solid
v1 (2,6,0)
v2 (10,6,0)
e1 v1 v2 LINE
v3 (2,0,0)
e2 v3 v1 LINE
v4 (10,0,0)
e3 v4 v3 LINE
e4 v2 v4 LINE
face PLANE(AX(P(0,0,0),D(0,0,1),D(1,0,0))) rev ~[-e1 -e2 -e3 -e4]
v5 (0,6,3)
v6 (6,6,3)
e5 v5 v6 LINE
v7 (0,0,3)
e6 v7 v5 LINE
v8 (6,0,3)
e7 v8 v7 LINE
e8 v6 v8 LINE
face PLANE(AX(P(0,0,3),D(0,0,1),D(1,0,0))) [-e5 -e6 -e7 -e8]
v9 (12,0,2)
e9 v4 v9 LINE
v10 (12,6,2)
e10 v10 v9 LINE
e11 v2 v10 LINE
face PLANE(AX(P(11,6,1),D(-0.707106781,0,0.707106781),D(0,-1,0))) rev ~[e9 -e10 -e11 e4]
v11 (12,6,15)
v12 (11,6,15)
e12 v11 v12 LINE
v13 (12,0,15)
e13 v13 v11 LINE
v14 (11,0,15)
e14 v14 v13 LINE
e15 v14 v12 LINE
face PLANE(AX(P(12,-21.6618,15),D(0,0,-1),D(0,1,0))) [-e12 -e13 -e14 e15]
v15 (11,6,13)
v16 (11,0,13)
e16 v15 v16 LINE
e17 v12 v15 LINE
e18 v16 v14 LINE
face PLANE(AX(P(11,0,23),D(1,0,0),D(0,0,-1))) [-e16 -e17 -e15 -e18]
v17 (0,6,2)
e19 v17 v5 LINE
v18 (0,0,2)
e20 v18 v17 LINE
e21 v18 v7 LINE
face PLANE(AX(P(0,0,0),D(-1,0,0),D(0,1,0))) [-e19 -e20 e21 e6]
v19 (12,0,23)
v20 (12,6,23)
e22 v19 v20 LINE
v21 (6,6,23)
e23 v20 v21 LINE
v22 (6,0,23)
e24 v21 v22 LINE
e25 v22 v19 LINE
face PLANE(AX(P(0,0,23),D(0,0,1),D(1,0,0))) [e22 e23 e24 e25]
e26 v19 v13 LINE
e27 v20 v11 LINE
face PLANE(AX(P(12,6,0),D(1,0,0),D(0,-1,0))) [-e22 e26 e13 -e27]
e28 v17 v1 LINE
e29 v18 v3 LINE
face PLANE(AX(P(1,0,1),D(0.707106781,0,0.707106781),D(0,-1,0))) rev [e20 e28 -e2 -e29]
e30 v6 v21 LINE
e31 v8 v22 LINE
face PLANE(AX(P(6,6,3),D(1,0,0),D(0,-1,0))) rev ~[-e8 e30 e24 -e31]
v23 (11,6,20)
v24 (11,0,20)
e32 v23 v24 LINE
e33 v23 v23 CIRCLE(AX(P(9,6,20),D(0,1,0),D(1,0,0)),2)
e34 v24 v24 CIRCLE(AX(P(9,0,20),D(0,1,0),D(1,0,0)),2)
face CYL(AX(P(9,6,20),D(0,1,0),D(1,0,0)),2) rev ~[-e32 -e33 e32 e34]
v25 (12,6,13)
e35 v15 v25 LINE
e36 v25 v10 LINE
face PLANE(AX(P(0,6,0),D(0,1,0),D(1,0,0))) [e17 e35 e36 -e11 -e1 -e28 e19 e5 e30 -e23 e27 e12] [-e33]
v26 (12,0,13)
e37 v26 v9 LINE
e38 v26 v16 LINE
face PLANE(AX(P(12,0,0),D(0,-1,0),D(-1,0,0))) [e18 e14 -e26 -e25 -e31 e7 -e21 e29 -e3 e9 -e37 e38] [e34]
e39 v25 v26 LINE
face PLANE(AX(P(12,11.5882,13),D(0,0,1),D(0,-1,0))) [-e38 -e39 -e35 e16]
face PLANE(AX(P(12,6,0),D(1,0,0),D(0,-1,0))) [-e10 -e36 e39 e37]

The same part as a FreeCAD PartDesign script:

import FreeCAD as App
import Part
import Sketcher


def edges_at(feature, points):
    """Names of the edges that pass closest to the given points."""
    edges = feature.Shape.Edges
    near = lambda p: min(range(len(edges)), key=lambda i: edges[i].distToShape(Part.Vertex(*p))[0])
    return sorted({f"Edge{near(p) + 1}" for p in points})


def add_polygon(sketch, points):
    """Adds a closed chain of lines whose ends are joined by coincident constraints."""
    first, n = sketch.GeometryCount, len(points)
    for a, b in zip(points, points[1:] + points[:1]):
        sketch.addGeometry(Part.LineSegment(App.Vector(*a, 0), App.Vector(*b, 0)), False)
    for i in range(n):
        sketch.addConstraint(Sketcher.Constraint("Coincident", first + i, 2, first + (i + 1) % n, 1))

doc = App.newDocument("Part")
body = doc.addObject("PartDesign::Body", "Body")

sketch1 = body.newObject("Sketcher::SketchObject", "Sketch")
sketch1.AttachmentSupport = (doc.getObject("XY_Plane"), [""])
sketch1.MapMode = "FlatFace"
add_polygon(sketch1, [(12, 6), (0, 6), (0, 0), (12, 0)])
sketch1.addConstraint([
    Sketcher.Constraint("Horizontal", 0),
    Sketcher.Constraint("Vertical", 1),
    Sketcher.Constraint("Horizontal", 2),
    Sketcher.Constraint("Vertical", 3),
    Sketcher.Constraint("Coincident", 1, 2, -1, 1),
    Sketcher.Constraint("DistanceX", 0, 2, 0, 1, 12.0),
    Sketcher.Constraint("DistanceY", 1, 2, 1, 1, 6.0),
])
pad1 = body.newObject("PartDesign::Pad", "Pad")
pad1.Profile = sketch1
pad1.Length = 3

sketch2 = body.newObject("Sketcher::SketchObject", "Sketch001")
sketch2.AttachmentSupport = (doc.getObject("XY_Plane"), [""])
sketch2.MapMode = "FlatFace"
sketch2.AttachmentOffset = App.Placement(App.Vector(0, 0, 3), App.Rotation())
add_polygon(sketch2, [(12, 0), (12, 6), (6, 6), (6, 0)])
sketch2.addConstraint([
    Sketcher.Constraint("Vertical", 0),
    Sketcher.Constraint("Horizontal", 1),
    Sketcher.Constraint("Vertical", 2),
    Sketcher.Constraint("Horizontal", 3),
    Sketcher.Constraint("PointOnObject", 2, 2, -1),
    Sketcher.Constraint("Equal", 3, 0),
    Sketcher.Constraint("DistanceX", 1, 2, 1, 1, 6.0),
    Sketcher.Constraint("DistanceX", -1, 1, 1, 2, 6.0),
])
pad2 = body.newObject("PartDesign::Pad", "Pad001")
pad2.Profile = sketch2
pad2.Length = 20

sketch3 = body.newObject("Sketcher::SketchObject", "Sketch002")
sketch3.AttachmentSupport = (doc.getObject("XZ_Plane"), [""])
sketch3.MapMode = "FlatFace"
sketch3.AttachmentOffset = App.Placement(App.Vector(0, 0, -6), App.Rotation())
sketch3.addGeometry(Part.Circle(App.Vector(9, 20, 0), App.Vector(0, 0, 1), 2), False)
sketch3.addConstraint([
    Sketcher.Constraint("Diameter", 0, 4.0),
    Sketcher.Constraint("DistanceX", -1, 1, 0, 3, 9.0),
    Sketcher.Constraint("DistanceY", -1, 1, 0, 3, 20.0),
])
pocket1 = body.newObject("PartDesign::Pocket", "Pocket")
pocket1.Profile = sketch3
pocket1.Length = 30
pocket1.Reversed = True
doc.recompute()

chamfer = body.newObject("PartDesign::Chamfer", "Chamfer")
chamfer.Base = (pocket1, edges_at(pocket1, [(12, 3, 0), (0, 3, 0)]))
chamfer.Size = 2

sketch4 = body.newObject("Sketcher::SketchObject", "Sketch003")
sketch4.AttachmentSupport = (doc.getObject("YZ_Plane"), [""])
sketch4.MapMode = "FlatFace"
sketch4.AttachmentOffset = App.Placement(App.Vector(0, 0, 12), App.Rotation())
add_polygon(sketch4, [(11.6, 13), (11.6, 15), (-21.7, 15), (-21.7, 13)])
sketch4.addConstraint([
    Sketcher.Constraint("Vertical", 0),
    Sketcher.Constraint("Horizontal", 1),
    Sketcher.Constraint("Vertical", 2),
    Sketcher.Constraint("Horizontal", 3),
    Sketcher.Constraint("DistanceY", 0, 1, 0, 2, 2.0),
    Sketcher.Constraint("DistanceY", -1, 1, 0, 2, 15.0),
    Sketcher.Constraint("DistanceX", 1, 2, 1, 1, 33.25),
    Sketcher.Constraint("DistanceX", -1, 1, 0, 2, 11.5882),
])
pocket2 = body.newObject("PartDesign::Pocket", "Pocket001")
pocket2.Profile = sketch4
pocket2.Length = 1

doc.recompute()
